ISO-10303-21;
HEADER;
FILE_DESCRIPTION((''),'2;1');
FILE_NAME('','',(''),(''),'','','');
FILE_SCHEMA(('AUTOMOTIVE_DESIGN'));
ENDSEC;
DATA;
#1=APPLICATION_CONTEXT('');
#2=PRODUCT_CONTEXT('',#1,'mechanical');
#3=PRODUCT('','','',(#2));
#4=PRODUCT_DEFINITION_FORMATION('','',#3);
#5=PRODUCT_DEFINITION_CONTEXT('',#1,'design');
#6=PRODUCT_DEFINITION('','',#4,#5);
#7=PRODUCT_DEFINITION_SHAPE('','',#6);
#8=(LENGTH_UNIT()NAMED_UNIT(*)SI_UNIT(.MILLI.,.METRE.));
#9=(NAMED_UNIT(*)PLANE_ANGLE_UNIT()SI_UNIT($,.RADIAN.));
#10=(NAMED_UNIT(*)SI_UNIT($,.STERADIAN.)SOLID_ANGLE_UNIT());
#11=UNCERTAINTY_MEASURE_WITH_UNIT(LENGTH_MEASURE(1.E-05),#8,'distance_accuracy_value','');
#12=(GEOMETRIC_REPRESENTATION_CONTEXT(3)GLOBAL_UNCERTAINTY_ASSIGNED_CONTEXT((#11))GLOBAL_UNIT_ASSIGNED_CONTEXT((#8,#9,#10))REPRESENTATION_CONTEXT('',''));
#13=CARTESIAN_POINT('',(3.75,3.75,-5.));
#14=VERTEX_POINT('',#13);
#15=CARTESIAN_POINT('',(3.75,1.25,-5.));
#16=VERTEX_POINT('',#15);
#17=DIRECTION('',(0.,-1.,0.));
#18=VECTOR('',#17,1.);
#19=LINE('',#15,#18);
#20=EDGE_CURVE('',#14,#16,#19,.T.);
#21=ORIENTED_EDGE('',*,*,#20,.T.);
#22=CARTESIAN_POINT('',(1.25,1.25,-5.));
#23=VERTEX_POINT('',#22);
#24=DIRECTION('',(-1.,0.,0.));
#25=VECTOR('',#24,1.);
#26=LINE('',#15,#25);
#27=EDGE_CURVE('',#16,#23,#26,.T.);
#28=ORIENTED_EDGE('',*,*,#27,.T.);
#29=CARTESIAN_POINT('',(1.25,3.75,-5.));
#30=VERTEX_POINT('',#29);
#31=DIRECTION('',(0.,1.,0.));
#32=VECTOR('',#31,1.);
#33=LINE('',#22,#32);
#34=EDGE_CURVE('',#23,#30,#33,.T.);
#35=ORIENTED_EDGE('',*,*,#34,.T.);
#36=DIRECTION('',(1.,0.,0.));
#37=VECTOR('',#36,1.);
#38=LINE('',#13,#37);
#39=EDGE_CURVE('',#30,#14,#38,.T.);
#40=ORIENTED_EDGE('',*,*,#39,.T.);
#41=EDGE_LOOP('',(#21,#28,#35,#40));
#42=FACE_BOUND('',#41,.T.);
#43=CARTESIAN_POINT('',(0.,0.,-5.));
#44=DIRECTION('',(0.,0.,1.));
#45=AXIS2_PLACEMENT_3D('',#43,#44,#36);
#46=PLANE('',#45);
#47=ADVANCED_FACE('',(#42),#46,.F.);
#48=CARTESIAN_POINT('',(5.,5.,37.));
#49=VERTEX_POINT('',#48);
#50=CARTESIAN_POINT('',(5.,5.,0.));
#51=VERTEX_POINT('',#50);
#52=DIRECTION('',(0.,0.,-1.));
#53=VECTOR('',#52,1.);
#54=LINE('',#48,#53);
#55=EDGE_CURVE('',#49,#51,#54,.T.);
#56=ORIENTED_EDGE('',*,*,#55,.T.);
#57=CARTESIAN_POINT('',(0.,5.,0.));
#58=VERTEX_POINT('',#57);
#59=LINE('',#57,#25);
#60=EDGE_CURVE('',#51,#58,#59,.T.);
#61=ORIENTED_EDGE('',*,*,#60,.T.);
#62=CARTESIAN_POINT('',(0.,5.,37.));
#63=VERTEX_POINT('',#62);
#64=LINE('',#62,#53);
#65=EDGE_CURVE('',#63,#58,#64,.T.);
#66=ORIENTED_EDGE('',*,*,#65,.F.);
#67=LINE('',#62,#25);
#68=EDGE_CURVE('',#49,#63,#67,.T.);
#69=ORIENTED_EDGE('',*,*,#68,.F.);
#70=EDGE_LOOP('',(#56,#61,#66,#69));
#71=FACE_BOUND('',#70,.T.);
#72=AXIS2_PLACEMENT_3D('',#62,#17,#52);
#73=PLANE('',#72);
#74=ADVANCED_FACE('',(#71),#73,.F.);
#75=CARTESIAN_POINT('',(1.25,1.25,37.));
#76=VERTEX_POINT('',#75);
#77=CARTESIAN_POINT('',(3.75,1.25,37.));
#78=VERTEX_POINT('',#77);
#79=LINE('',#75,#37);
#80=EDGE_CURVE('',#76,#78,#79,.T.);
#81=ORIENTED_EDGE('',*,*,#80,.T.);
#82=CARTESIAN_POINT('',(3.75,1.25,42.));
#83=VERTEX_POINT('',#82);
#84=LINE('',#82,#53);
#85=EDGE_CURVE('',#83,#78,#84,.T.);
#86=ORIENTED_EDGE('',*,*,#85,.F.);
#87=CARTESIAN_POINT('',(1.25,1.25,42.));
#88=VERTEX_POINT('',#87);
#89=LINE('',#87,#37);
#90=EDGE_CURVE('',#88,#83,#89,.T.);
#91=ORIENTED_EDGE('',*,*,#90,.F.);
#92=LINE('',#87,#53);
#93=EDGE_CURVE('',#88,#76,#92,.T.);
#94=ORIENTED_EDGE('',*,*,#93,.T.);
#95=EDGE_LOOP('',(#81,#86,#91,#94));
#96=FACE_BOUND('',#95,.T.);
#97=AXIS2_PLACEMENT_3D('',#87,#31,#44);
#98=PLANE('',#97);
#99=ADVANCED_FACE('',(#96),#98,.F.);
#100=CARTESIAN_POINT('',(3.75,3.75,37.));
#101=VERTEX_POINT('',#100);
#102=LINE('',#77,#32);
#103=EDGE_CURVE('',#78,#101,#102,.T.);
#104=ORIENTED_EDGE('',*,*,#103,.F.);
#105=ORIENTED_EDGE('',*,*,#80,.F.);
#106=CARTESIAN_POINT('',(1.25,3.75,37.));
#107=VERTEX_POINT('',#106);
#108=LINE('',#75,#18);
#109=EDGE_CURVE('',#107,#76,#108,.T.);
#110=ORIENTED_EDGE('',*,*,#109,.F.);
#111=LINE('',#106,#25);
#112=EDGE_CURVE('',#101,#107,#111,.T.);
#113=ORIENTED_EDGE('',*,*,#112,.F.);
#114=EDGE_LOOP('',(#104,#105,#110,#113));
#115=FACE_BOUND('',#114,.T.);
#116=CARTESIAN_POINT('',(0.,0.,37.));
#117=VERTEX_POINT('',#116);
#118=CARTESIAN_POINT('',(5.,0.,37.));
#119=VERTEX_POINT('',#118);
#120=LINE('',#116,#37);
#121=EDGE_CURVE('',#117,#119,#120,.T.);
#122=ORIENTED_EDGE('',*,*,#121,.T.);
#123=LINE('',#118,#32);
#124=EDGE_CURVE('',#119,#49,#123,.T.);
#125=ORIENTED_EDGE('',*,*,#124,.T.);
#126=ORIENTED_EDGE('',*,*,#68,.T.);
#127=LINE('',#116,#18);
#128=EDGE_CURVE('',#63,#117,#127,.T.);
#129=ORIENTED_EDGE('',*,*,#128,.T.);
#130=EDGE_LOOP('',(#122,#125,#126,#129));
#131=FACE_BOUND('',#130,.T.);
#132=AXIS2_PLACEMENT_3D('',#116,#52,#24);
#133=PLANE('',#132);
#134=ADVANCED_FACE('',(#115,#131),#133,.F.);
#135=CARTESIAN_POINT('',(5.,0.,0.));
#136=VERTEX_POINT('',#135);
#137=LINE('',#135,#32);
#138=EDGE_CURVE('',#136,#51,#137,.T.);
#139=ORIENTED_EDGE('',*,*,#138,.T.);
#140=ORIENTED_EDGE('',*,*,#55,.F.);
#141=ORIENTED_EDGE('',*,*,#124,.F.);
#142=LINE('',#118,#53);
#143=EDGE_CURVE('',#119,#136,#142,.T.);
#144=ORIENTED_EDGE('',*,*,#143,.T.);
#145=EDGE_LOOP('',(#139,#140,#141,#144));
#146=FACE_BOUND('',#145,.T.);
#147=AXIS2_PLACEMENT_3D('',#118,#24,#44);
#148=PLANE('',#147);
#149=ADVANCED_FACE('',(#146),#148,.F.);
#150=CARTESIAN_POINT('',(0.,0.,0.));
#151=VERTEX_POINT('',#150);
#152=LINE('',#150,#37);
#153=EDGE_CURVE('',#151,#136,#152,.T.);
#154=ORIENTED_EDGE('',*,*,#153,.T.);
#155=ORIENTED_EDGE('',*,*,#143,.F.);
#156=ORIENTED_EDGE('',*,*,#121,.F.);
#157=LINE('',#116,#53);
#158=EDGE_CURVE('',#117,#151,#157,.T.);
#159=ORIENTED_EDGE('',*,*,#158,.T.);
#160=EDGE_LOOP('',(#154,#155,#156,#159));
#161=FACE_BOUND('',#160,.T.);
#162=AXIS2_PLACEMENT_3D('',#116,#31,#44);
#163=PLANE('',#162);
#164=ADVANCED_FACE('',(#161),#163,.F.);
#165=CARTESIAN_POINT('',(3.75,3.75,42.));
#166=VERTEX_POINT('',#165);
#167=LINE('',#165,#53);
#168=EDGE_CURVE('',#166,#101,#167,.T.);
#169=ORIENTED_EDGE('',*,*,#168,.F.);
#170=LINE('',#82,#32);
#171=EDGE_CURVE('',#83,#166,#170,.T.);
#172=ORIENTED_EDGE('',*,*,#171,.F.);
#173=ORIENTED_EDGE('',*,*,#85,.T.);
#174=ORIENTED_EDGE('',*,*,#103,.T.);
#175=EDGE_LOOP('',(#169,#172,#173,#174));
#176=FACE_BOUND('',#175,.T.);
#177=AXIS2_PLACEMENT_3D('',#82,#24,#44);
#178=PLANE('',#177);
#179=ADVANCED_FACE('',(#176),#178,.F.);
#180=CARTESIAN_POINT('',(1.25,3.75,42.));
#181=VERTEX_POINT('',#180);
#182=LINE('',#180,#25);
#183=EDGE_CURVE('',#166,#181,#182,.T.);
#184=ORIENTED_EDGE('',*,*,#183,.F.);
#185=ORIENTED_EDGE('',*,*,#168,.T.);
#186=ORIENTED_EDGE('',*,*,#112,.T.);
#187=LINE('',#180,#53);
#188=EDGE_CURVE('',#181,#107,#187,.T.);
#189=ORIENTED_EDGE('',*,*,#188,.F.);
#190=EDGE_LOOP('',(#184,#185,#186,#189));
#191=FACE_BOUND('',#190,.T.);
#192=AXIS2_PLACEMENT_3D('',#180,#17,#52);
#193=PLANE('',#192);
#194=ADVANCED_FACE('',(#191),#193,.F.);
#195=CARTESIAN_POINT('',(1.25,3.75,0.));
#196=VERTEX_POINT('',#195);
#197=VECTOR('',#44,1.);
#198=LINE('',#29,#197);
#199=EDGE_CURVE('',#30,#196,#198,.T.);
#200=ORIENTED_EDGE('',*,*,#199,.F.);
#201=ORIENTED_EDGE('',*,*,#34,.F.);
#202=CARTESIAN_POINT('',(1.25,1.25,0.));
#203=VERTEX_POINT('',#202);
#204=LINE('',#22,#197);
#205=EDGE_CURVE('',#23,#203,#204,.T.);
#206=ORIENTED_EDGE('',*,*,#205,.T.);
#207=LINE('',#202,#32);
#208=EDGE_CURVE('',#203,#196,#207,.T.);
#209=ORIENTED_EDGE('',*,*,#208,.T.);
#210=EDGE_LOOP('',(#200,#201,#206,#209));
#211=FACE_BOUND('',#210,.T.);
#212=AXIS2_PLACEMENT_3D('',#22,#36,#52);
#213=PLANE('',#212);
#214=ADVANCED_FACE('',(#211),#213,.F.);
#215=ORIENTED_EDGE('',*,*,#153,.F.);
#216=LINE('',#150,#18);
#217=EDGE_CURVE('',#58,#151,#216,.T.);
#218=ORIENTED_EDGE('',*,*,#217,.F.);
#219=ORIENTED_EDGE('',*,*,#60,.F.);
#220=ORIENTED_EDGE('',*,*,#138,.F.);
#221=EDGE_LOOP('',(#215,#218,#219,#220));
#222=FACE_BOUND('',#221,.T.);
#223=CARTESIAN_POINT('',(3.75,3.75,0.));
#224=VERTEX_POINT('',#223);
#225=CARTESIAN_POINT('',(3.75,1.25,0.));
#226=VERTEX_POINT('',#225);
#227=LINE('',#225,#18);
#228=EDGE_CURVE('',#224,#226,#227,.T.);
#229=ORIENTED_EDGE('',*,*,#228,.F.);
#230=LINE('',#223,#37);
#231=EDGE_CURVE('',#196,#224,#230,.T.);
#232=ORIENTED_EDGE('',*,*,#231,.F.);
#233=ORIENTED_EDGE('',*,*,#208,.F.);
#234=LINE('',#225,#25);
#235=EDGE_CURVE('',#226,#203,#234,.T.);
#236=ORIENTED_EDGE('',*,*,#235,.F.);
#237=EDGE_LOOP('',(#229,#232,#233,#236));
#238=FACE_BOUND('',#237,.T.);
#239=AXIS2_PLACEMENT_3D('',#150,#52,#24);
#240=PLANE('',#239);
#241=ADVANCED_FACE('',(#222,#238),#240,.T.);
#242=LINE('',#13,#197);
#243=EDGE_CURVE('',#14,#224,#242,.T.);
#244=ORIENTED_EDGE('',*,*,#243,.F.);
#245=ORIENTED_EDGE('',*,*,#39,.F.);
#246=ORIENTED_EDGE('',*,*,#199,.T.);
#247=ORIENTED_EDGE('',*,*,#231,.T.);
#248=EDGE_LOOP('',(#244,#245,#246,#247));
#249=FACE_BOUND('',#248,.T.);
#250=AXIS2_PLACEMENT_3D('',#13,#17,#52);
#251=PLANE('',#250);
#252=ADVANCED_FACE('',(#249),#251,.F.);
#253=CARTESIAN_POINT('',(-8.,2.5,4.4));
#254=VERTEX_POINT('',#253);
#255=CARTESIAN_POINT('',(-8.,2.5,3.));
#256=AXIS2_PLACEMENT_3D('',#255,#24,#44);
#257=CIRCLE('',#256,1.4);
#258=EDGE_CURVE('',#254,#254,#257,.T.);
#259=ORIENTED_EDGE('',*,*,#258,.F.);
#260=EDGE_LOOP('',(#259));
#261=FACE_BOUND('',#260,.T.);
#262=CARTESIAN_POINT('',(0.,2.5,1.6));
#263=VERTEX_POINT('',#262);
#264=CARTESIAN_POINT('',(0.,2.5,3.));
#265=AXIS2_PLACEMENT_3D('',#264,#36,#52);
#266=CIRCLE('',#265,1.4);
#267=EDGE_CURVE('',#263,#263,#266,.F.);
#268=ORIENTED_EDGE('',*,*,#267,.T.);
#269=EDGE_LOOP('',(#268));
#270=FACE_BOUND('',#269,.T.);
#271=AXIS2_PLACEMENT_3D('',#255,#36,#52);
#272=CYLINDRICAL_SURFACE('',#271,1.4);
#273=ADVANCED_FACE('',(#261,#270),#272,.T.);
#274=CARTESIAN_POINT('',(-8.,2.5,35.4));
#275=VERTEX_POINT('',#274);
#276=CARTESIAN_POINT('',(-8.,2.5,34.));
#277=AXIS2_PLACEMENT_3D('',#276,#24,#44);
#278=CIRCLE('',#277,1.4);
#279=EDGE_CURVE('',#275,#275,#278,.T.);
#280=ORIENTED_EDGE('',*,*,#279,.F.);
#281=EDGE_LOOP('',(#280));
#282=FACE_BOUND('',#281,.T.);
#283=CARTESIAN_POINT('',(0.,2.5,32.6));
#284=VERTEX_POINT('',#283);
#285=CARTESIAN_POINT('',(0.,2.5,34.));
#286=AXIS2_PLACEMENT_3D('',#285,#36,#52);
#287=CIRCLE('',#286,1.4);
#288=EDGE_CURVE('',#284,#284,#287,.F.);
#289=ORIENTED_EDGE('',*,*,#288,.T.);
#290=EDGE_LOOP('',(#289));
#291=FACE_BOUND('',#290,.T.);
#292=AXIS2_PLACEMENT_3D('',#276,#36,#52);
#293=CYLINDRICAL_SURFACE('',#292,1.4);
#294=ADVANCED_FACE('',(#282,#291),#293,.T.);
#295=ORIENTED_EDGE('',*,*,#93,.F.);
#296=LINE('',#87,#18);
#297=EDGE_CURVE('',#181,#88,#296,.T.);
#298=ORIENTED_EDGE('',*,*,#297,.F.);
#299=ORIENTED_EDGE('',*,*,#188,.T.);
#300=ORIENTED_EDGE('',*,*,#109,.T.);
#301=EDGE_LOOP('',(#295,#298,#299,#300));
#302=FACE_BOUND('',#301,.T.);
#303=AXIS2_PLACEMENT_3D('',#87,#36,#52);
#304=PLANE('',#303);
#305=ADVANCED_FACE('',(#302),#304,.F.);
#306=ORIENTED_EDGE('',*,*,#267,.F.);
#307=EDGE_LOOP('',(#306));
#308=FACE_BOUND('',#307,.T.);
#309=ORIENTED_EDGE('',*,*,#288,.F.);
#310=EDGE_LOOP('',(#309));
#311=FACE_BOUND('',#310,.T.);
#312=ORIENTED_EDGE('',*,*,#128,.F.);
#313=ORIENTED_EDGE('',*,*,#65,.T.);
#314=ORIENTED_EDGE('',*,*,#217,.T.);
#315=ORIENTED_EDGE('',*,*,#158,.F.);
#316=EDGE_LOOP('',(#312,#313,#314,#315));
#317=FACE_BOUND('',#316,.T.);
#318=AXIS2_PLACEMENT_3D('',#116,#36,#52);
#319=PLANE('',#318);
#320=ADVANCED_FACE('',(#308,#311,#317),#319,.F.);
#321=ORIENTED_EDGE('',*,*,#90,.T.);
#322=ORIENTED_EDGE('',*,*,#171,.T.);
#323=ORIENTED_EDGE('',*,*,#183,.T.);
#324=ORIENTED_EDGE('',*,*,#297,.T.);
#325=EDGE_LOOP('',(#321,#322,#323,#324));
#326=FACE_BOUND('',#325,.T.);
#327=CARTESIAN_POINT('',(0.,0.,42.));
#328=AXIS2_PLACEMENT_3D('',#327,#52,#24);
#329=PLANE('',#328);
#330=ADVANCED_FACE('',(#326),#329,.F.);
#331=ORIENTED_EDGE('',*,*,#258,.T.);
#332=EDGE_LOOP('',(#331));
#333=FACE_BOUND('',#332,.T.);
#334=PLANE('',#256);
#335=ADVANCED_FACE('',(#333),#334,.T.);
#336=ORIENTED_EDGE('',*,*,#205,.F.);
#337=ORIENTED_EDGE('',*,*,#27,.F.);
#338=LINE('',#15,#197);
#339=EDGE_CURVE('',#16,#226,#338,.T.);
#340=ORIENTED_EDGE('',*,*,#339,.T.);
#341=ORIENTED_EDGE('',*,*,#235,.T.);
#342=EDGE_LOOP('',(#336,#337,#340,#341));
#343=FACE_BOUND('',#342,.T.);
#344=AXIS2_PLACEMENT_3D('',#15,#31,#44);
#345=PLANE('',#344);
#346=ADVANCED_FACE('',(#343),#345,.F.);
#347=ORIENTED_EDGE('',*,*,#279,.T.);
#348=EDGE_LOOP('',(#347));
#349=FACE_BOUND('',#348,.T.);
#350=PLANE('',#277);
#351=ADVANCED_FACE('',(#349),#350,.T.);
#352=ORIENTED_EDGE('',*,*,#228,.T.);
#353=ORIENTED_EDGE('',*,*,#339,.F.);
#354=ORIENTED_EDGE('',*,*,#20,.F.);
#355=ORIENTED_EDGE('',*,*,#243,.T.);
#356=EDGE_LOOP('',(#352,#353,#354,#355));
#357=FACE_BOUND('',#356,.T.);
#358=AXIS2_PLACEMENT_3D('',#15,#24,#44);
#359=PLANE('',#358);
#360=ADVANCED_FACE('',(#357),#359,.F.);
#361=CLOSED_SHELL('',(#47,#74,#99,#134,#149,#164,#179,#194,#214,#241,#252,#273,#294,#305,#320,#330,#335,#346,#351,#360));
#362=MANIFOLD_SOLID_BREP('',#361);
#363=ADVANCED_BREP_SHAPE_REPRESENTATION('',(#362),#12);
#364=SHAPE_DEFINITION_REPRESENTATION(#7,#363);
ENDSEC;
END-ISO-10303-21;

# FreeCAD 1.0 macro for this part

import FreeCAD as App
import Part
import Sketcher
Q = App.Units.Quantity

doc = App.newDocument("Part")
body = doc.addObject("PartDesign::Body", "Body")

# Sketch on XY plane
sketch1 = doc.addObject("Sketcher::SketchObject", "Sketch")
body.addObject(sketch1)
sketch1.AttachmentSupport = (doc.XY_Plane, [""])
sketch1.MapMode = "FlatFace"
sketch1.addGeometry([
    Part.LineSegment(App.Vector(0, 5, 0), App.Vector(0, 0, 0)),
    Part.LineSegment(App.Vector(0, 0, 0), App.Vector(5, 0, 0)),
    Part.LineSegment(App.Vector(5, 0, 0), App.Vector(5, 5, 0)),
    Part.LineSegment(App.Vector(5, 5, 0), App.Vector(0, 5, 0)),
], False)
sketch1.addConstraint([
    Sketcher.Constraint("Coincident", 0, 2, 1, 1),
    Sketcher.Constraint("Coincident", 1, 2, 2, 1),
    Sketcher.Constraint("Coincident", 2, 2, 3, 1),
    Sketcher.Constraint("Coincident", 3, 2, 0, 1),
    Sketcher.Constraint("Vertical", 0),
    Sketcher.Constraint("Horizontal", 1),
    Sketcher.Constraint("Vertical", 2),
    Sketcher.Constraint("Horizontal", 3),
    Sketcher.Constraint("Coincident", 0, 2, -1, 1),
    Sketcher.Constraint("Equal", 3, 0),
    Sketcher.Constraint("DistanceX", 1, 1, 1, 2, Q("5 mm")),
])
pad1 = doc.addObject("PartDesign::Pad", "Pad")
body.addObject(pad1)
pad1.Profile = sketch1
pad1.Length = 37

# Sketch on XY plane
sketch2 = doc.addObject("Sketcher::SketchObject", "Sketch001")
body.addObject(sketch2)
sketch2.AttachmentSupport = (doc.XY_Plane, [""])
sketch2.MapMode = "FlatFace"
sketch2.AttachmentOffset = App.Placement(App.Vector(0, 0, 37), App.Rotation())
sketch2.addGeometry([
    Part.LineSegment(App.Vector(1.2, 3.8, 0), App.Vector(1.2, 1.2, 0)),
    Part.LineSegment(App.Vector(1.2, 1.2, 0), App.Vector(3.8, 1.2, 0)),
    Part.LineSegment(App.Vector(3.8, 1.2, 0), App.Vector(3.8, 3.8, 0)),
    Part.LineSegment(App.Vector(3.8, 3.8, 0), App.Vector(1.2, 3.8, 0)),
], False)
sketch2.addConstraint([
    Sketcher.Constraint("Coincident", 0, 2, 1, 1),
    Sketcher.Constraint("Coincident", 1, 2, 2, 1),
    Sketcher.Constraint("Coincident", 2, 2, 3, 1),
    Sketcher.Constraint("Coincident", 3, 2, 0, 1),
    Sketcher.Constraint("Vertical", 0),
    Sketcher.Constraint("Horizontal", 1),
    Sketcher.Constraint("Vertical", 2),
    Sketcher.Constraint("Horizontal", 3),
    Sketcher.Constraint("Equal", 3, 0),
    Sketcher.Constraint("DistanceX", 1, 1, 1, 2, Q("2.5 mm")),
    Sketcher.Constraint("DistanceX", -1, 1, 0, 2, Q("1.25 mm")),
    Sketcher.Constraint("DistanceY", -1, 1, 0, 2, Q("1.25 mm")),
])
pad2 = doc.addObject("PartDesign::Pad", "Pad001")
body.addObject(pad2)
pad2.Profile = sketch2
pad2.Length = 5

# Sketch on XY plane
sketch3 = doc.addObject("Sketcher::SketchObject", "Sketch002")
body.addObject(sketch3)
sketch3.AttachmentSupport = (doc.XY_Plane, [""])
sketch3.MapMode = "FlatFace"
sketch3.addGeometry([
    Part.LineSegment(App.Vector(3.8, 3.8, 0), App.Vector(3.8, 1.2, 0)),
    Part.LineSegment(App.Vector(3.8, 1.2, 0), App.Vector(1.2, 1.2, 0)),
    Part.LineSegment(App.Vector(1.2, 1.2, 0), App.Vector(1.2, 3.8, 0)),
    Part.LineSegment(App.Vector(1.2, 3.8, 0), App.Vector(3.8, 3.8, 0)),
], False)
sketch3.addConstraint([
    Sketcher.Constraint("Coincident", 0, 2, 1, 1),
    Sketcher.Constraint("Coincident", 1, 2, 2, 1),
    Sketcher.Constraint("Coincident", 2, 2, 3, 1),
    Sketcher.Constraint("Coincident", 3, 2, 0, 1),
    Sketcher.Constraint("Vertical", 0),
    Sketcher.Constraint("Horizontal", 1),
    Sketcher.Constraint("Vertical", 2),
    Sketcher.Constraint("Horizontal", 3),
    Sketcher.Constraint("Equal", 3, 0),
    Sketcher.Constraint("DistanceX", 1, 2, 1, 1, Q("2.5 mm")),
    Sketcher.Constraint("DistanceX", -1, 1, 0, 2, Q("3.75 mm")),
    Sketcher.Constraint("DistanceY", -1, 1, 0, 2, Q("1.25 mm")),
])
pad3 = doc.addObject("PartDesign::Pad", "Pad002")
body.addObject(pad3)
pad3.Profile = sketch3
pad3.Length = 5
pad3.Reversed = True

# Sketch on YZ plane
sketch4 = doc.addObject("Sketcher::SketchObject", "Sketch003")
body.addObject(sketch4)
sketch4.AttachmentSupport = (doc.YZ_Plane, [""])
sketch4.MapMode = "FlatFace"
sketch4.addGeometry([
    Part.Circle(App.Vector(2.5, 3, 0), App.Vector(0, 0, 1), 1.4),
    Part.Circle(App.Vector(2.5, 34, 0), App.Vector(0, 0, 1), 1.4),
], False)
sketch4.addConstraint([
    Sketcher.Constraint("Equal", 0, 1),
    Sketcher.Constraint("Vertical", 0, 3, 1, 3),
    Sketcher.Constraint("Diameter", 0, Q("2.8 mm")),
    Sketcher.Constraint("DistanceY", -1, 1, 0, 3, Q("3 mm")),
    Sketcher.Constraint("DistanceY", -1, 1, 1, 3, Q("34 mm")),
    Sketcher.Constraint("DistanceX", -1, 1, 0, 3, Q("2.5 mm")),
])
pad4 = doc.addObject("PartDesign::Pad", "Pad003")
body.addObject(pad4)
pad4.Profile = sketch4
pad4.Length = 8
pad4.Reversed = True

doc.recompute()
